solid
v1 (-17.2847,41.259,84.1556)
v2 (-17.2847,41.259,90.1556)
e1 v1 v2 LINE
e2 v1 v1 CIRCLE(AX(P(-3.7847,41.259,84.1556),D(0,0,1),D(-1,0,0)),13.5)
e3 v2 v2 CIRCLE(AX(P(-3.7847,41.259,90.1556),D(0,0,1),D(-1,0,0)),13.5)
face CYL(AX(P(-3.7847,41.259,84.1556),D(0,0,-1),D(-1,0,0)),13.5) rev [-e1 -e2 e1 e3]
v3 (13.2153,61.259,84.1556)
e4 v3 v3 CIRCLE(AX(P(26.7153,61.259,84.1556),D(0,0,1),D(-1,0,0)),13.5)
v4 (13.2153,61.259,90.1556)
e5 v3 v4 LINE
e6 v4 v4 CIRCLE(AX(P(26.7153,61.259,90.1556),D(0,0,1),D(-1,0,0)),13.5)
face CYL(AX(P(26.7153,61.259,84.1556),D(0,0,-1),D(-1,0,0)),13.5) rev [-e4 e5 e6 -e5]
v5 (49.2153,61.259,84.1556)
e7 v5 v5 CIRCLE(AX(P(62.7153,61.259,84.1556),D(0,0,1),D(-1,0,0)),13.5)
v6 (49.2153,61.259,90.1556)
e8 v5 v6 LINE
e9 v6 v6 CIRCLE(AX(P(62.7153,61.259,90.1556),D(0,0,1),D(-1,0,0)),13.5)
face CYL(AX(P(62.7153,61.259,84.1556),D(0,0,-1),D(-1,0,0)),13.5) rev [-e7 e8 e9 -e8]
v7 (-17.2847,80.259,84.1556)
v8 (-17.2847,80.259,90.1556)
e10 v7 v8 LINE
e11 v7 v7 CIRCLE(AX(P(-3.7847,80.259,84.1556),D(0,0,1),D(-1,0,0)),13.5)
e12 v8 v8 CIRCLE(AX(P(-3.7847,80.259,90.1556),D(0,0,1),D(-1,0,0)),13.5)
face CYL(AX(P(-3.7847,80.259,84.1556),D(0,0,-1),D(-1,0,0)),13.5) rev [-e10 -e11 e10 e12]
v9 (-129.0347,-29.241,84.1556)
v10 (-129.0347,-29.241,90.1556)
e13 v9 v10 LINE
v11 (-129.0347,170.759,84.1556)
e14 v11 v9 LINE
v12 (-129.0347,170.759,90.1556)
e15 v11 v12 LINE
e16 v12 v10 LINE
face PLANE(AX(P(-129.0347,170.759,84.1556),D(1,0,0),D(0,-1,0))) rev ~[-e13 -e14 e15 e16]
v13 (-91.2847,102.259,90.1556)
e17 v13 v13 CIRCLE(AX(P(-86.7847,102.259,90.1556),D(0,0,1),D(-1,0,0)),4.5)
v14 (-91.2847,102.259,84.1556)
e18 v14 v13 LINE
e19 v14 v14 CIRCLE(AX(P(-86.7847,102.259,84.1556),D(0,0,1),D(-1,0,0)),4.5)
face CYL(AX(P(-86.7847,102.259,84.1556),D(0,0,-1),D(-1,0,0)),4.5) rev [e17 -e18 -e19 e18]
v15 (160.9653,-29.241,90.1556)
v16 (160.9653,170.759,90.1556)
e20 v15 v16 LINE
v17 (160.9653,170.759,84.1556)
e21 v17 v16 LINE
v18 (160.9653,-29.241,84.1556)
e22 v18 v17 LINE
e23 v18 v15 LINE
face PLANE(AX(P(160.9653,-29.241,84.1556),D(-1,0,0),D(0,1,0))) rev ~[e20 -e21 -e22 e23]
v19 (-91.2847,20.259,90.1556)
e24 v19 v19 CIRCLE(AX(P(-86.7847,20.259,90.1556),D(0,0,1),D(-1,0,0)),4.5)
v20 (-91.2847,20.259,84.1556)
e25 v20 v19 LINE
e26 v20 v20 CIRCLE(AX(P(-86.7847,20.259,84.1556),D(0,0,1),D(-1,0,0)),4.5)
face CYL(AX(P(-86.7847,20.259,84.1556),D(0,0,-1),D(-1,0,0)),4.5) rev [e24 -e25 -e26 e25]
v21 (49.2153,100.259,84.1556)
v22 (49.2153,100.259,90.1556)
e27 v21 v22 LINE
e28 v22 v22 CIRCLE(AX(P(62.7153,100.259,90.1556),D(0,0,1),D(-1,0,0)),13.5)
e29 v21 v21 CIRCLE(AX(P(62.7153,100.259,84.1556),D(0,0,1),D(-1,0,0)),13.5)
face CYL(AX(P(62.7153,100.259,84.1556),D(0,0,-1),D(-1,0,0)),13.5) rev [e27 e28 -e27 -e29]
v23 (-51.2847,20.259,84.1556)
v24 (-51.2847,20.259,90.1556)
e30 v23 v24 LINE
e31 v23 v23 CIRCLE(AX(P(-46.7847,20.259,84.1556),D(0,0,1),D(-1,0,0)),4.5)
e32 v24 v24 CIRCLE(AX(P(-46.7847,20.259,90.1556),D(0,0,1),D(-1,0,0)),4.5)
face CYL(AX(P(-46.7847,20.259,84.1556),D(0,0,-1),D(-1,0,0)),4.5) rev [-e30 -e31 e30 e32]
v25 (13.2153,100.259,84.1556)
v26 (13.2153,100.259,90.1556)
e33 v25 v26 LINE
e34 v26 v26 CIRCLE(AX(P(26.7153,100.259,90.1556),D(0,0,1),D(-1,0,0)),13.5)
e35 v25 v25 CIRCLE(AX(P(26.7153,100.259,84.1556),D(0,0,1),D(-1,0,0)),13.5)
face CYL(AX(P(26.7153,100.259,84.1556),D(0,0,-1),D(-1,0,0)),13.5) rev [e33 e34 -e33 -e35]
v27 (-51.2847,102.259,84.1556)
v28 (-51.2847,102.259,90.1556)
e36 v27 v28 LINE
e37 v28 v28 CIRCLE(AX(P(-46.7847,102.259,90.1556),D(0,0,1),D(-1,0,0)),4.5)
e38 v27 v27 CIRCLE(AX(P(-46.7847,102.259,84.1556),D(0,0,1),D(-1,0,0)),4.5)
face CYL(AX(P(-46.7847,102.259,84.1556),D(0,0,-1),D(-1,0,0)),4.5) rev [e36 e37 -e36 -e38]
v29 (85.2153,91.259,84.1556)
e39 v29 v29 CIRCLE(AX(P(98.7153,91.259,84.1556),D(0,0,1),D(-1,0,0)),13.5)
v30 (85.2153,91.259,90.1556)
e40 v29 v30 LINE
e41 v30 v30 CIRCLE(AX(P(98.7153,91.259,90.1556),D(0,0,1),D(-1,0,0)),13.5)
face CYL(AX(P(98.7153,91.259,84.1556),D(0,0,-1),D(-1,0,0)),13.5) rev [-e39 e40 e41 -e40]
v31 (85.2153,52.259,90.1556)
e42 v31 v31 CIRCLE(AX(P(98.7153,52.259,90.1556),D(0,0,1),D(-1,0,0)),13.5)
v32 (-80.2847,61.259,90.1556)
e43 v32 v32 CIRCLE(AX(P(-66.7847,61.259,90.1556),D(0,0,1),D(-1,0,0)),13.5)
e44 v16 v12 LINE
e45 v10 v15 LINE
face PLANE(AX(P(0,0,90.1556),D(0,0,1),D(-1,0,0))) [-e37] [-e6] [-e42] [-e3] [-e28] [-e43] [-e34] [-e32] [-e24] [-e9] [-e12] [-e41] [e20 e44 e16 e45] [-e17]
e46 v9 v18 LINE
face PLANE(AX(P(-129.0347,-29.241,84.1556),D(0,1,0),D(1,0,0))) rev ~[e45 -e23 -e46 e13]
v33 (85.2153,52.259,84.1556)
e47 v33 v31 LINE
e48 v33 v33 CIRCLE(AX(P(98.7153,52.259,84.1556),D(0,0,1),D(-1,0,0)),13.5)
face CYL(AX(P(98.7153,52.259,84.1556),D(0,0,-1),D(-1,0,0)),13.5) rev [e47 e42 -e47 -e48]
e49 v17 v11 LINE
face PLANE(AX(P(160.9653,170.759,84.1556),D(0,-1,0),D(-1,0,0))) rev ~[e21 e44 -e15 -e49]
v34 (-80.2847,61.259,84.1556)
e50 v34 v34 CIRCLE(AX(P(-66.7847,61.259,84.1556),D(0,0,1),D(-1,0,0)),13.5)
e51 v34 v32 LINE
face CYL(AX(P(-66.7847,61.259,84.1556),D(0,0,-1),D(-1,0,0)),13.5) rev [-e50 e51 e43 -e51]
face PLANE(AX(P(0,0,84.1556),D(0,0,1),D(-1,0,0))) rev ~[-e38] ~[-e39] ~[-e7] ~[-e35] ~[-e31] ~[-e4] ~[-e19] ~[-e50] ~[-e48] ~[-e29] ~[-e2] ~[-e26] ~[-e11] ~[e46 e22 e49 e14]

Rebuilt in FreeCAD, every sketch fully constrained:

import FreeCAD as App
import Part
import Sketcher
from FreeCAD import Vector

doc = App.newDocument("Part")
body = doc.addObject("PartDesign::Body", "Body")

sketch1 = body.newObject("Sketcher::SketchObject", "Sketch")
sketch1.AttachmentSupport = (doc.getObject("XY_Plane"), [""])
sketch1.MapMode = "FlatFace"
sketch1.AttachmentOffset = App.Placement(Vector(0, 0, 84.1556), App.Rotation())
sketch1.addGeometry([
    Part.LineSegment(Vector(-129, 170.8, 0), Vector(-129, -29.2, 0)),
    Part.LineSegment(Vector(-129, -29.2, 0), Vector(161, -29.2, 0)),
    Part.LineSegment(Vector(161, -29.2, 0), Vector(161, 170.8, 0)),
    Part.LineSegment(Vector(161, 170.8, 0), Vector(-129, 170.8, 0)),
    Part.Circle(Vector(98.7, 91.3, 0), Vector(0, 0, 1), 13.5),
    Part.Circle(Vector(62.7, 100.3, 0), Vector(0, 0, 1), 13.5),
    Part.Circle(Vector(26.7, 100.3, 0), Vector(0, 0, 1), 13.5),
    Part.Circle(Vector(-46.8, 102.3, 0), Vector(0, 0, 1), 4.5),
    Part.Circle(Vector(-3.8, 80.3, 0), Vector(0, 0, 1), 13.5),
    Part.Circle(Vector(-86.8, 102.3, 0), Vector(0, 0, 1), 4.5),
    Part.Circle(Vector(98.7, 52.3, 0), Vector(0, 0, 1), 13.5),
    Part.Circle(Vector(62.7, 61.3, 0), Vector(0, 0, 1), 13.5),
    Part.Circle(Vector(26.7, 61.3, 0), Vector(0, 0, 1), 13.5),
    Part.Circle(Vector(-3.8, 41.3, 0), Vector(0, 0, 1), 13.5),
    Part.Circle(Vector(-66.8, 61.3, 0), Vector(0, 0, 1), 13.5),
    Part.Circle(Vector(-46.8, 20.3, 0), Vector(0, 0, 1), 4.5),
    Part.Circle(Vector(-86.8, 20.3, 0), Vector(0, 0, 1), 4.5),
], False)
sketch1.addConstraint([
    Sketcher.Constraint("Coincident", 0, 2, 1, 1),
    Sketcher.Constraint("Coincident", 1, 2, 2, 1),
    Sketcher.Constraint("Coincident", 2, 2, 3, 1),
    Sketcher.Constraint("Coincident", 3, 2, 0, 1),
    Sketcher.Constraint("Vertical", 0),
    Sketcher.Constraint("Horizontal", 1),
    Sketcher.Constraint("Vertical", 2),
    Sketcher.Constraint("Horizontal", 3),
    Sketcher.Constraint("Equal", 4, 5),
    Sketcher.Constraint("Equal", 5, 6),
    Sketcher.Constraint("Equal", 6, 8),
    Sketcher.Constraint("Equal", 7, 9),
    Sketcher.Constraint("Equal", 8, 10),
    Sketcher.Constraint("Equal", 10, 11),
    Sketcher.Constraint("Equal", 11, 12),
    Sketcher.Constraint("Equal", 12, 13),
    Sketcher.Constraint("Equal", 13, 14),
    Sketcher.Constraint("Equal", 9, 15),
    Sketcher.Constraint("Equal", 15, 16),
    Sketcher.Constraint("Horizontal", 5, 3, 6, 3),
    Sketcher.Constraint("Horizontal", 7, 3, 9, 3),
    Sketcher.Constraint("Horizontal", 11, 3, 12, 3),
    Sketcher.Constraint("Horizontal", 12, 3, 14, 3),
    Sketcher.Constraint("Horizontal", 15, 3, 16, 3),
    Sketcher.Constraint("Vertical", 4, 3, 10, 3),
    Sketcher.Constraint("Vertical", 5, 3, 11, 3),
    Sketcher.Constraint("Vertical", 6, 3, 12, 3),
    Sketcher.Constraint("Vertical", 8, 3, 13, 3),
    Sketcher.Constraint("Vertical", 7, 3, 15, 3),
    Sketcher.Constraint("Vertical", 9, 3, 16, 3),
    Sketcher.Constraint("Diameter", 4, 27.0),
    Sketcher.Constraint("Diameter", 7, 9.0),
    Sketcher.Constraint("DistanceX", 1, 1, 1, 2, 290.0),
    Sketcher.Constraint("DistanceY", 0, 2, 0, 1, 200.0),
    Sketcher.Constraint("DistanceX", 5, 3, 4, 3, 36.0),
    Sketcher.Constraint("DistanceY", 4, 3, 5, 3, 9.0),
    Sketcher.Constraint("DistanceX", 6, 3, 5, 3, 36.0),
    Sketcher.Constraint("DistanceY", 6, 3, 7, 3, 2.0),
    Sketcher.Constraint("DistanceY", 8, 3, 6, 3, 20.0),
    Sketcher.Constraint("DistanceX", 7, 3, 8, 3, 43.0),
    Sketcher.Constraint("DistanceX", 9, 3, 7, 3, 40.0),
    Sketcher.Constraint("DistanceY", 10, 3, 4, 3, 39.0),
    Sketcher.Constraint("DistanceY", 10, 3, 11, 3, 9.0),
    Sketcher.Constraint("DistanceY", 13, 3, 12, 3, 20.0),
    Sketcher.Constraint("DistanceX", 14, 3, 7, 3, 20.0),
    Sketcher.Constraint("DistanceY", 15, 3, 14, 3, 41.0),
    Sketcher.Constraint("DistanceX", 7, 3, 6, 3, 73.5),
    Sketcher.Constraint("DistanceY", 0, 2, 16, 3, 49.5),
    Sketcher.Constraint("DistanceX", 0, 2, 16, 3, 42.25),
    Sketcher.Constraint("DistanceY", -1, 1, 4, 3, 91.259),
    Sketcher.Constraint("DistanceX", -1, 1, 4, 3, 98.7153),
])
pad1 = body.newObject("PartDesign::Pad", "Pad")
pad1.Profile = sketch1
pad1.Length = 6

doc.recompute()
